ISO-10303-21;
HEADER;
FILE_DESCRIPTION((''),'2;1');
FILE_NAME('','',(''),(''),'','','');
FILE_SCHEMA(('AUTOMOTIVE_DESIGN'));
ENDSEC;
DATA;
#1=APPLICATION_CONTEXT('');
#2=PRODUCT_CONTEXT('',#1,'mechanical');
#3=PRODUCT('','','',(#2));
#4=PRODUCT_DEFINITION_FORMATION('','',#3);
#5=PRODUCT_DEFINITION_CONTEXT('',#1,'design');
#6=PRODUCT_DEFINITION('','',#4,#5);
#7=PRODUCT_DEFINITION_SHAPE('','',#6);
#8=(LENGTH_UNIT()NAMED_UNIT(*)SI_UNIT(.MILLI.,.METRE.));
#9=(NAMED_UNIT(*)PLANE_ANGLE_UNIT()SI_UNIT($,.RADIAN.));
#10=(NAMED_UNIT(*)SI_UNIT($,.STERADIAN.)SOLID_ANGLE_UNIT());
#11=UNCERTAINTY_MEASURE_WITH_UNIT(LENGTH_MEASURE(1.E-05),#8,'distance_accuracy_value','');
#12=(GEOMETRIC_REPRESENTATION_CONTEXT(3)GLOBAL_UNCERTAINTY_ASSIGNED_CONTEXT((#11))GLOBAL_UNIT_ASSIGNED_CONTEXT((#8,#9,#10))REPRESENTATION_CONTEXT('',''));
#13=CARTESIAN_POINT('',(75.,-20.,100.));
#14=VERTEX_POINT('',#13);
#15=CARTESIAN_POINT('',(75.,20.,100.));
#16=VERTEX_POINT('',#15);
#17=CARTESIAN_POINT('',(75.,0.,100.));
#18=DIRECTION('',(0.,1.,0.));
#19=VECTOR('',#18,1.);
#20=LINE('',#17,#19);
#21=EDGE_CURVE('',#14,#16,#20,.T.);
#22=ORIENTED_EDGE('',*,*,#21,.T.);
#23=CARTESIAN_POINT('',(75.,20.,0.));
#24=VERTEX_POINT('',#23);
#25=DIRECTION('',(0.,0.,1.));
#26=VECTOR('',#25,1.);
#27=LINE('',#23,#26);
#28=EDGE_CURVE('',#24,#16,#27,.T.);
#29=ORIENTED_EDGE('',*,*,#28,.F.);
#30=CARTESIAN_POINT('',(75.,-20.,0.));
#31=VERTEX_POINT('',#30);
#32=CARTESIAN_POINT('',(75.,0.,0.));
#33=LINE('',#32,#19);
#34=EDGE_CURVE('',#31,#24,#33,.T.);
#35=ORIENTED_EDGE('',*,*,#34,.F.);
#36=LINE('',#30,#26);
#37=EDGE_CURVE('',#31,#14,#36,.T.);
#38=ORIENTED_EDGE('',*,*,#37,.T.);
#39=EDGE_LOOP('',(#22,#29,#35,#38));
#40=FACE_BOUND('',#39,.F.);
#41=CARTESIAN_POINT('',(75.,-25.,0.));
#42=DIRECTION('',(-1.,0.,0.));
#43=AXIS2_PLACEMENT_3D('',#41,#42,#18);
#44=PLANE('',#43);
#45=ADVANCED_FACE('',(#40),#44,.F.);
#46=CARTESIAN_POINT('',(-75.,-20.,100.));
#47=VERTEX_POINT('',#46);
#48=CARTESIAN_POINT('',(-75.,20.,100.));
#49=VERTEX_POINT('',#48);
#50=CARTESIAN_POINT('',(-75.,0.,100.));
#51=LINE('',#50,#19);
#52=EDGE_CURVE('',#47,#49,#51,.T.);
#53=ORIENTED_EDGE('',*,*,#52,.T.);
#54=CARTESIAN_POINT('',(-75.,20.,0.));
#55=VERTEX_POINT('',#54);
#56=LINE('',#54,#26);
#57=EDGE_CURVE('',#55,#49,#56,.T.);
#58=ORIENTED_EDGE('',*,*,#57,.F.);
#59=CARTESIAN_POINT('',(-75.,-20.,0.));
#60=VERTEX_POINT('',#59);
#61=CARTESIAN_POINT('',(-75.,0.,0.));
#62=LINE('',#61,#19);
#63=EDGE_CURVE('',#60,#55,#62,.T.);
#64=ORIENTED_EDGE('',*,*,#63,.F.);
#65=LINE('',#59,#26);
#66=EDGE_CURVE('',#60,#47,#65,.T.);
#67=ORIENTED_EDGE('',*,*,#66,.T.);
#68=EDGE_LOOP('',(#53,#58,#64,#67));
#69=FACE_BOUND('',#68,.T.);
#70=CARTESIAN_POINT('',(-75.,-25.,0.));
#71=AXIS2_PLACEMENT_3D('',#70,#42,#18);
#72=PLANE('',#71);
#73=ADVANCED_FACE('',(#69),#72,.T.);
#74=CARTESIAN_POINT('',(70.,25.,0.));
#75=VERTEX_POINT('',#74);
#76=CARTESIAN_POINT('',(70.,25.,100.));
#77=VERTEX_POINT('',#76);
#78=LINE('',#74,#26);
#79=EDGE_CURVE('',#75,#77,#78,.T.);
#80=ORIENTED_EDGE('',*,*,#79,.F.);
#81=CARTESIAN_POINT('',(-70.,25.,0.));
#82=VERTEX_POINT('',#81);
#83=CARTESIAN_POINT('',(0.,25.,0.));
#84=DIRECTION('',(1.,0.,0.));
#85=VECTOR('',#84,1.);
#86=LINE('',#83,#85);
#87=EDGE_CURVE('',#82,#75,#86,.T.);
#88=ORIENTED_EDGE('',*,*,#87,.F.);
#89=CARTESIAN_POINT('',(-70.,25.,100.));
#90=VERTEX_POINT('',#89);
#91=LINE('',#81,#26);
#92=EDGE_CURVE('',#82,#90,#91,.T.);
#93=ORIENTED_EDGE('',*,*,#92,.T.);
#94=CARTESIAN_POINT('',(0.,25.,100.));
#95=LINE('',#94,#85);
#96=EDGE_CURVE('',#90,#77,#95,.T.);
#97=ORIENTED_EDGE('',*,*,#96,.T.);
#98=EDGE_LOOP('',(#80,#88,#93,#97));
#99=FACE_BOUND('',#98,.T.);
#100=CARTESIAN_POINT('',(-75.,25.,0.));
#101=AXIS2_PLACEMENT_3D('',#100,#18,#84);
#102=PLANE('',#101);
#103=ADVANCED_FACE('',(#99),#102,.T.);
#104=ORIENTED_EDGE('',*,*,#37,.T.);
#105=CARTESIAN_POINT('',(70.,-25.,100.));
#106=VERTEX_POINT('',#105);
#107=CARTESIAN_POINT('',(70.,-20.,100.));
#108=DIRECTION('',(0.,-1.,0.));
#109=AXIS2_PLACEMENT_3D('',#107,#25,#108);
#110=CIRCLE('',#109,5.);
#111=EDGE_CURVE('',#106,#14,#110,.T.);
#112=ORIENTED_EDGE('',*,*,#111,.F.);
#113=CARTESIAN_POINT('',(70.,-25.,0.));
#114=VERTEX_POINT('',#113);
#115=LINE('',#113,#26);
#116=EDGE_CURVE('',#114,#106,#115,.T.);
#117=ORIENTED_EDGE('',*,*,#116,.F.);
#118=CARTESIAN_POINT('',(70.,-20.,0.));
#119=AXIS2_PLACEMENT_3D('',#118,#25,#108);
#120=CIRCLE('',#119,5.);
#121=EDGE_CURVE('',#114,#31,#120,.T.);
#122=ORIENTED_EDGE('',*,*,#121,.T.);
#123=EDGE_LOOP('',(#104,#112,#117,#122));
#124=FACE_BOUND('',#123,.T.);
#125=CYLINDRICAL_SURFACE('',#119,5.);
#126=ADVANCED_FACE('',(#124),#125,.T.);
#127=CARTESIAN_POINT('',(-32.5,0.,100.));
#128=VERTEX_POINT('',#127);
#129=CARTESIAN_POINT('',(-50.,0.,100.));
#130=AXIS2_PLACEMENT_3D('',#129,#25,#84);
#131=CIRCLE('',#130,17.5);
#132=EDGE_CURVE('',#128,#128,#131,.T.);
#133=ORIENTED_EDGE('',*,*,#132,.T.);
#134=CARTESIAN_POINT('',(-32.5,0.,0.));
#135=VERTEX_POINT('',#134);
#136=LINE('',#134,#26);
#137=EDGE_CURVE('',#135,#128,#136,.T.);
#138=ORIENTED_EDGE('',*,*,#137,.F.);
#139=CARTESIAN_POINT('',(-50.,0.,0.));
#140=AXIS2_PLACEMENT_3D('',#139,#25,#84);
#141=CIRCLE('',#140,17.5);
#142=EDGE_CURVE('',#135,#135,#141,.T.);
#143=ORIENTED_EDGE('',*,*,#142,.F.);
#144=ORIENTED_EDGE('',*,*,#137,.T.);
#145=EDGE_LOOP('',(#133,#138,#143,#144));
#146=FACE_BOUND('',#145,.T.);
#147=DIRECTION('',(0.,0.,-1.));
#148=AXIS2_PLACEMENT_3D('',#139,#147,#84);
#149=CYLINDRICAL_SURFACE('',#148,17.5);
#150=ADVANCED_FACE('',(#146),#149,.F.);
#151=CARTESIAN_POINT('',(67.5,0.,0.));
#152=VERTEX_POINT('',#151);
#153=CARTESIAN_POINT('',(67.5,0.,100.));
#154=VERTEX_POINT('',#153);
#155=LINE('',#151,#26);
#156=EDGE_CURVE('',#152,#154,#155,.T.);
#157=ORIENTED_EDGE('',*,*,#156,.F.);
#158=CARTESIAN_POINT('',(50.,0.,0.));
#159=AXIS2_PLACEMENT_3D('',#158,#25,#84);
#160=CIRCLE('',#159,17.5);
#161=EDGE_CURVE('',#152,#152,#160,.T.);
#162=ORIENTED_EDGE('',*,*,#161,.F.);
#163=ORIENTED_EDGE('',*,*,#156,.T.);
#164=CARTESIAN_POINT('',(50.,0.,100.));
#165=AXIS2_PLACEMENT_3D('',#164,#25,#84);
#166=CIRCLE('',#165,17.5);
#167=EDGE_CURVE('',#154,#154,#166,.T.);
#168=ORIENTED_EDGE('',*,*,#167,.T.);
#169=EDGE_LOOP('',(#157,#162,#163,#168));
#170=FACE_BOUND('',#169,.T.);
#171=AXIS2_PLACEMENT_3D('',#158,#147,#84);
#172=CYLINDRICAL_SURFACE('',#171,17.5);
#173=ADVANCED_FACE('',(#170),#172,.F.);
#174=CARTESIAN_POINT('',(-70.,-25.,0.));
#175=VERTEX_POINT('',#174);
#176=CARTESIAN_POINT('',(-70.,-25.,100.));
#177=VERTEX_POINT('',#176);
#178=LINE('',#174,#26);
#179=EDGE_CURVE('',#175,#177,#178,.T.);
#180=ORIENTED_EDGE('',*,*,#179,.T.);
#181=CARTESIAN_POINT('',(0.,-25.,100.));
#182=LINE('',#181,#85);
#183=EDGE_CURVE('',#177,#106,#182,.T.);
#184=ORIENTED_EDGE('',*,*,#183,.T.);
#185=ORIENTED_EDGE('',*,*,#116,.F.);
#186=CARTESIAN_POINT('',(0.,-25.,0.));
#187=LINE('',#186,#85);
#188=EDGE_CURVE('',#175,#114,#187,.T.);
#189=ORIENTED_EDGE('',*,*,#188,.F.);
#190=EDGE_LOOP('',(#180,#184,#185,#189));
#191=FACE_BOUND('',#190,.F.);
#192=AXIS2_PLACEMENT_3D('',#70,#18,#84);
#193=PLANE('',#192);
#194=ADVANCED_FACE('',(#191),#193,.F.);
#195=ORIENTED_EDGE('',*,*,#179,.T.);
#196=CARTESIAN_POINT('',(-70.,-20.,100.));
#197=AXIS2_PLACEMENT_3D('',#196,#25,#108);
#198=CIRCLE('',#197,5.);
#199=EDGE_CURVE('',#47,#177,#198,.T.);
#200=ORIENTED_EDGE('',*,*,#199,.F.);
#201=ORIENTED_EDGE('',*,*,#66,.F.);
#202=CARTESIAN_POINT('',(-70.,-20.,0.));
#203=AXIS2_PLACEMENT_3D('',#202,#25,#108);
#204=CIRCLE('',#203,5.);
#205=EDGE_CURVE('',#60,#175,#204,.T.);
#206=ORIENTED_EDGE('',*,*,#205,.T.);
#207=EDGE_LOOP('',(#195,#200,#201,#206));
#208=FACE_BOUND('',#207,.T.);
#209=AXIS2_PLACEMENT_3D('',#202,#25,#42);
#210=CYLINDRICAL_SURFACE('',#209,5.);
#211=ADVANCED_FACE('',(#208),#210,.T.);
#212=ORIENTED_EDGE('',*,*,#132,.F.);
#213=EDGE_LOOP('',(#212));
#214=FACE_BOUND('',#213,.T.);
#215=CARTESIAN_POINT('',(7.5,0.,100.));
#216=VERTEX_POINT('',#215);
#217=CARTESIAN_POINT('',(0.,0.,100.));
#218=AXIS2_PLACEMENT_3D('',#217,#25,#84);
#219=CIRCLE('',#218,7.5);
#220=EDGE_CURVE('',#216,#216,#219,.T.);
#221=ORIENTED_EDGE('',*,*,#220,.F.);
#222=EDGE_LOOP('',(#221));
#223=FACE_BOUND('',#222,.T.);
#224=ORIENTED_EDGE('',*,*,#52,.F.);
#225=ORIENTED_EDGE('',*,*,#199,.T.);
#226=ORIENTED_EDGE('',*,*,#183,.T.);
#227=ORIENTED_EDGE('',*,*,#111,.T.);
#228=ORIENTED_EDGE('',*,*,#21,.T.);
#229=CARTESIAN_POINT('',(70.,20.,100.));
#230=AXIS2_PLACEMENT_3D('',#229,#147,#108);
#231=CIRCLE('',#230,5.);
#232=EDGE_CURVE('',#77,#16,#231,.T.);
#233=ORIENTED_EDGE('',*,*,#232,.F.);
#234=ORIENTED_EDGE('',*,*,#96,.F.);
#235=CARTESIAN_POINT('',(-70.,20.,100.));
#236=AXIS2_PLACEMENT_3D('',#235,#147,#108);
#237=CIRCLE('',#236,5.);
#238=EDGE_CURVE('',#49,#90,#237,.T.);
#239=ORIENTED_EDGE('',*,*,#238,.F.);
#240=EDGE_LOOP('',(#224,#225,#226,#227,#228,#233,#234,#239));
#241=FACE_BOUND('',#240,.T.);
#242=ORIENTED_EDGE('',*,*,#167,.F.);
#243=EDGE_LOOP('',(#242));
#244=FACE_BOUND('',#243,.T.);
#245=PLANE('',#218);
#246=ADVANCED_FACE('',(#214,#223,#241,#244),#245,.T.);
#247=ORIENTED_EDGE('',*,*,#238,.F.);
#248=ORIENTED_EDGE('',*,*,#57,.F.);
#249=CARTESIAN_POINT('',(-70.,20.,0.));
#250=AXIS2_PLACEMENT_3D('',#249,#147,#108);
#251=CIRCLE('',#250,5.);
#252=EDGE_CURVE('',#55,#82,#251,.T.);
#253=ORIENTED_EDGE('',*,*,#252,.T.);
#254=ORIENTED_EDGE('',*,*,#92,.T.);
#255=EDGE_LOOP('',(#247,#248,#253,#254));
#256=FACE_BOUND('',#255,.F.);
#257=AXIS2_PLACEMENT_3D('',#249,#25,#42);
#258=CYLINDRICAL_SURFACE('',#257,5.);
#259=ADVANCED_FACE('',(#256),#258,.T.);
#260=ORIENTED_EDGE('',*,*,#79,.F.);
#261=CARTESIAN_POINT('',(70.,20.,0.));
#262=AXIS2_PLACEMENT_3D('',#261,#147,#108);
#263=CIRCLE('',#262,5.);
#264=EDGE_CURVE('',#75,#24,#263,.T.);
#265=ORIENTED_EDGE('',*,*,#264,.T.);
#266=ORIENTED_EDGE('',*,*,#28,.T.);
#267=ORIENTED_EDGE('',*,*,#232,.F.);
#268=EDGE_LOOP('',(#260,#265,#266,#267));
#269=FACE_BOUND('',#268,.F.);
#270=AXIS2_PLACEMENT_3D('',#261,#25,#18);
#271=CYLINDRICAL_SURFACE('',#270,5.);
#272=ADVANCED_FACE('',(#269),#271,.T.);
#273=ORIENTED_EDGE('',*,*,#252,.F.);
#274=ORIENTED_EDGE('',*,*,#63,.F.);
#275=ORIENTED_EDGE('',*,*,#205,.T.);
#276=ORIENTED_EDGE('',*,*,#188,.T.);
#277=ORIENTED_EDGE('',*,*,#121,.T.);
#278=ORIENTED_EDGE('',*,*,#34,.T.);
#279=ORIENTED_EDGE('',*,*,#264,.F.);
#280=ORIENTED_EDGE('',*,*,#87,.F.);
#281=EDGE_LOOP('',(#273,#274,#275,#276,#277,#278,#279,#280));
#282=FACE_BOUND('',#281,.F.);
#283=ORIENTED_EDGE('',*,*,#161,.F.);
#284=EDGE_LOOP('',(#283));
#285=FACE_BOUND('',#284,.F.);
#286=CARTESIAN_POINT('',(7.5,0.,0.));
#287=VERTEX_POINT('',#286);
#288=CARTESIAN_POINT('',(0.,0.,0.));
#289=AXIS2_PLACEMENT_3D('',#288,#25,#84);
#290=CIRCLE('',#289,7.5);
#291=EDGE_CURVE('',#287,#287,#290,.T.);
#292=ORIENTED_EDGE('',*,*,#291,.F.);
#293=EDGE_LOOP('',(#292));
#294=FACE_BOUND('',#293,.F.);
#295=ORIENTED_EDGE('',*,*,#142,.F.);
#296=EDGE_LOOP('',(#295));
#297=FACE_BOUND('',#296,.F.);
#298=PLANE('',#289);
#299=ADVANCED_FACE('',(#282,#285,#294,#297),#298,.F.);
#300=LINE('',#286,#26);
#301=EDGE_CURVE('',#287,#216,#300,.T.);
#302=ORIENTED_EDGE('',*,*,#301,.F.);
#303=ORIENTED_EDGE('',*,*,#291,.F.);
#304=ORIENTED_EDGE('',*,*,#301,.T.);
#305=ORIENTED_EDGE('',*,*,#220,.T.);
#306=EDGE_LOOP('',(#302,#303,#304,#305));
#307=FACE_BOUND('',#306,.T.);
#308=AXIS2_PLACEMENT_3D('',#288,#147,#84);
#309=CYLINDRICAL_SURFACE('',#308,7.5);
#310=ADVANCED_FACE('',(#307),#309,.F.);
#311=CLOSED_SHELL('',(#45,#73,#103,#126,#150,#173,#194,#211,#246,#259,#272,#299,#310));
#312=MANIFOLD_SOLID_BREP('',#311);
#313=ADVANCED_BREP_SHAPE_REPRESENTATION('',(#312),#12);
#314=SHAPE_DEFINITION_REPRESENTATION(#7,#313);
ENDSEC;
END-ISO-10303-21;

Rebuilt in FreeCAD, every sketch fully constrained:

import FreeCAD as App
import Part
import Sketcher
Q = App.Units.Quantity


def edges_at(feature, points):
    """Names of the edges that pass closest to the given points."""
    edges = feature.Shape.Edges
    near = lambda p: min(range(len(edges)), key=lambda i: edges[i].distToShape(Part.Vertex(*p))[0])
    return sorted({f"Edge{near(p) + 1}" for p in points})


def add_polygon(sketch, points):
    """Adds a closed chain of lines whose ends are joined by coincident constraints."""
    first, n = sketch.GeometryCount, len(points)
    for a, b in zip(points, points[1:] + points[:1]):
        sketch.addGeometry(Part.LineSegment(App.Vector(*a, 0), App.Vector(*b, 0)), False)
    for i in range(n):
        sketch.addConstraint(Sketcher.Constraint("Coincident", first + i, 2, first + (i + 1) % n, 1))

doc = App.newDocument("Part")
params = doc.addObject("Spreadsheet::Sheet", "Params")
for row, (alias, value) in enumerate([
    ("sketch1_diameter", "35 mm"),
    ("sketch1_diameter2", "15 mm"),
    ("sketch1_width", "150 mm"),
    ("sketch1_height", "50 mm"),
    ("pad1_length", "100 mm"),
    ("fillet_radius", "5 mm"),
], start=1):
    params.set(f"A{row}", alias)
    params.set(f"B{row}", "=" + value)
    params.setAlias(f"B{row}", alias)

body = doc.addObject("PartDesign::Body", "Body")

# Sketch on XY plane
sketch1 = doc.addObject("Sketcher::SketchObject", "Sketch")
body.addObject(sketch1)
sketch1.AttachmentSupport = (doc.XY_Plane, [""])
sketch1.MapMode = "FlatFace"
add_polygon(sketch1, [(-75, 25), (-75, -25), (75, -25), (75, 25)])  # lines 0-3
sketch1.addGeometry(Part.Circle(App.Vector(-50, 0, 0), App.Vector(0, 0, 1), 18), False)  # 4
sketch1.addGeometry(Part.Circle(App.Vector(0, 0, 0), App.Vector(0, 0, 1), 8), False)  # 5
sketch1.addGeometry(Part.Circle(App.Vector(50, 0, 0), App.Vector(0, 0, 1), 18), False)  # 6
sketch1.addConstraint(Sketcher.Constraint("Vertical", 0))
sketch1.addConstraint(Sketcher.Constraint("Horizontal", 1))
sketch1.addConstraint(Sketcher.Constraint("Vertical", 2))
sketch1.addConstraint(Sketcher.Constraint("Horizontal", 3))
sketch1.addConstraint(Sketcher.Constraint("Coincident", 5, 3, -1, 1))
sketch1.addConstraint(Sketcher.Constraint("Equal", 4, 6))
sketch1.addConstraint(Sketcher.Constraint("Symmetric", 4, 3, 6, 3, -1, 1))
sketch1.addConstraint(Sketcher.Constraint("Symmetric", 0, 2, 2, 2, -1, 1))
sketch1.addConstraint(Sketcher.Constraint("PointOnObject", 4, 3, -1))
sketch1.addConstraint(Sketcher.Constraint("Diameter", 4, Q("35 mm")))
sketch1.addConstraint(Sketcher.Constraint("Diameter", 5, Q("15 mm")))
sketch1.addConstraint(Sketcher.Constraint("DistanceX", 1, 1, 1, 2, Q("150 mm")))
sketch1.addConstraint(Sketcher.Constraint("DistanceY", 0, 2, 0, 1, Q("50 mm")))
sketch1.addConstraint(Sketcher.Constraint("DistanceX", 4, 3, -1, 1, Q("50 mm")))
sketch1.setExpression("Constraints[13]", "Params.sketch1_diameter")
sketch1.setExpression("Constraints[14]", "Params.sketch1_diameter2")
sketch1.setExpression("Constraints[15]", "Params.sketch1_width")
sketch1.setExpression("Constraints[16]", "Params.sketch1_height")
pad1 = doc.addObject("PartDesign::Pad", "Pad")
body.addObject(pad1)
pad1.Profile = sketch1
pad1.setExpression("Length", "Params.pad1_length")
doc.recompute()

fillet = doc.addObject("PartDesign::Fillet", "Fillet")
body.addObject(fillet)
fillet.Base = (pad1, edges_at(pad1, [
    (-75, -25, 50),
    (75, -25, 50),
    (75, 25, 50),
    (-75, 25, 50),
]))
fillet.setExpression("Radius", "Params.fillet_radius")

doc.recompute()
